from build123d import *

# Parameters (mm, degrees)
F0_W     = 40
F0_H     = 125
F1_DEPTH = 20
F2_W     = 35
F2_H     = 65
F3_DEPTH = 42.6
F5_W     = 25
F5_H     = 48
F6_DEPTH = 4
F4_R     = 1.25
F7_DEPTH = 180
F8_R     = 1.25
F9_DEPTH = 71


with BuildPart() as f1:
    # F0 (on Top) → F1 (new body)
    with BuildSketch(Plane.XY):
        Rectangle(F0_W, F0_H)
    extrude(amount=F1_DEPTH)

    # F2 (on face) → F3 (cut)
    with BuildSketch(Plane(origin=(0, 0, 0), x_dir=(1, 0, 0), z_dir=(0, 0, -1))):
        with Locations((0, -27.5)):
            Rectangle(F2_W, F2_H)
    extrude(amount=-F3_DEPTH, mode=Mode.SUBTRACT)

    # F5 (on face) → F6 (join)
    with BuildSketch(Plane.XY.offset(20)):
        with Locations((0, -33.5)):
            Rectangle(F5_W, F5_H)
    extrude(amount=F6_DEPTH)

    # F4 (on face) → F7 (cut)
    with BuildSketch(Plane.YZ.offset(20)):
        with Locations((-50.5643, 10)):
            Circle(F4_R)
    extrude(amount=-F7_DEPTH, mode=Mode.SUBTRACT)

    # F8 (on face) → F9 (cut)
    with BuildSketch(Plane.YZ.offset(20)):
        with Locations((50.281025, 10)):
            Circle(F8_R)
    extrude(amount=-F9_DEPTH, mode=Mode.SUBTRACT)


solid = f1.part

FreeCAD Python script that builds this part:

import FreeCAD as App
import Part
import Sketcher
from FreeCAD import Vector


def add_polygon(sketch, points):
    """Adds a closed chain of lines whose ends are joined by coincident constraints."""
    first, n = sketch.GeometryCount, len(points)
    for a, b in zip(points, points[1:] + points[:1]):
        sketch.addGeometry(Part.LineSegment(App.Vector(*a, 0), App.Vector(*b, 0)), False)
    for i in range(n):
        sketch.addConstraint(Sketcher.Constraint("Coincident", first + i, 2, first + (i + 1) % n, 1))

doc = App.newDocument("Part")
body = doc.addObject("PartDesign::Body", "Body")

# Sketch on XY plane
sketch1 = body.newObject("Sketcher::SketchObject", "Sketch")
sketch1.AttachmentSupport = (doc.getObject("XY_Plane"), [""])
sketch1.MapMode = "FlatFace"
add_polygon(sketch1, [(-20, 62), (-20, -62), (20, -62), (20, 62)])  # lines 0-3
sketch1.addConstraint([
    Sketcher.Constraint("Vertical", 0),
    Sketcher.Constraint("Horizontal", 1),
    Sketcher.Constraint("Vertical", 2),
    Sketcher.Constraint("Horizontal", 3),
    Sketcher.Constraint("Symmetric", 0, 2, 2, 2, -1, 1),
    Sketcher.Constraint("DistanceX", 1, 1, 1, 2, 40.0),
    Sketcher.Constraint("DistanceY", 0, 2, 0, 1, 125.0),
])
pad1 = body.newObject("PartDesign::Pad", "Pad")
pad1.Profile = sketch1
pad1.Length = 20

# Sketch on XY plane
sketch2 = body.newObject("Sketcher::SketchObject", "Sketch001")
sketch2.AttachmentSupport = (doc.getObject("XY_Plane"), [""])
sketch2.MapMode = "FlatFace"
add_polygon(sketch2, [(-18, -5), (-18, 60), (18, 60), (18, -5)])  # lines 0-3
sketch2.addConstraint([
    Sketcher.Constraint("Vertical", 0),
    Sketcher.Constraint("Horizontal", 1),
    Sketcher.Constraint("Vertical", 2),
    Sketcher.Constraint("Horizontal", 3),
    Sketcher.Constraint("DistanceX", 1, 1, 1, 2, 35.0),
    Sketcher.Constraint("DistanceY", 0, 1, 0, 2, 65.0),
    Sketcher.Constraint("DistanceY", -1, 1, 0, 2, 60.0),
    Sketcher.Constraint("DistanceX", 0, 2, -1, 1, 17.5),
])
pocket1 = body.newObject("PartDesign::Pocket", "Pocket")
pocket1.Profile = sketch2
pocket1.Length = 42.6
pocket1.Reversed = True

# Sketch on XY plane
sketch3 = body.newObject("Sketcher::SketchObject", "Sketch002")
sketch3.AttachmentSupport = (doc.getObject("XY_Plane"), [""])
sketch3.MapMode = "FlatFace"
sketch3.AttachmentOffset = App.Placement(Vector(0, 0, 20), App.Rotation())
add_polygon(sketch3, [(-12, -10), (-12, -58), (12, -58), (12, -10)])  # lines 0-3
sketch3.addConstraint([
    Sketcher.Constraint("Vertical", 0),
    Sketcher.Constraint("Horizontal", 1),
    Sketcher.Constraint("Vertical", 2),
    Sketcher.Constraint("Horizontal", 3),
    Sketcher.Constraint("DistanceX", 1, 1, 1, 2, 25.0),
    Sketcher.Constraint("DistanceY", 0, 2, 0, 1, 48.0),
    Sketcher.Constraint("DistanceX", 0, 2, -1, 1, 12.5),
    Sketcher.Constraint("DistanceY", 0, 2, -1, 1, 57.5),
])
pad2 = body.newObject("PartDesign::Pad", "Pad001")
pad2.Profile = sketch3
pad2.Length = 4

# Sketch on YZ plane
sketch4 = body.newObject("Sketcher::SketchObject", "Sketch003")
sketch4.AttachmentSupport = (doc.getObject("YZ_Plane"), [""])
sketch4.MapMode = "FlatFace"
sketch4.AttachmentOffset = App.Placement(Vector(0, 0, 20), App.Rotation())
sketch4.addGeometry(Part.Circle(Vector(-50.6, 10, 0), Vector(0, 0, 1), 1.2), False)
sketch4.addConstraint([
    Sketcher.Constraint("Diameter", 0, 2.5),
    Sketcher.Constraint("DistanceY", -1, 1, 0, 3, 10.0),
    Sketcher.Constraint("DistanceX", 0, 3, -1, 1, 50.5643),
])
pocket2 = body.newObject("PartDesign::Pocket", "Pocket001")
pocket2.Profile = sketch4
pocket2.Length = 180

# Sketch on YZ plane
sketch5 = body.newObject("Sketcher::SketchObject", "Sketch004")
sketch5.AttachmentSupport = (doc.getObject("YZ_Plane"), [""])
sketch5.MapMode = "FlatFace"
sketch5.AttachmentOffset = App.Placement(Vector(0, 0, 20), App.Rotation())
sketch5.addGeometry(Part.Circle(Vector(50.3, 10, 0), Vector(0, 0, 1), 1.2), False)
sketch5.addConstraint([
    Sketcher.Constraint("Diameter", 0, 2.5),
    Sketcher.Constraint("DistanceY", -1, 1, 0, 3, 10.0),
    Sketcher.Constraint("DistanceX", -1, 1, 0, 3, 50.281025),
])
pocket3 = body.newObject("PartDesign::Pocket", "Pocket002")
pocket3.Profile = sketch5
pocket3.Length = 71

doc.recompute()
